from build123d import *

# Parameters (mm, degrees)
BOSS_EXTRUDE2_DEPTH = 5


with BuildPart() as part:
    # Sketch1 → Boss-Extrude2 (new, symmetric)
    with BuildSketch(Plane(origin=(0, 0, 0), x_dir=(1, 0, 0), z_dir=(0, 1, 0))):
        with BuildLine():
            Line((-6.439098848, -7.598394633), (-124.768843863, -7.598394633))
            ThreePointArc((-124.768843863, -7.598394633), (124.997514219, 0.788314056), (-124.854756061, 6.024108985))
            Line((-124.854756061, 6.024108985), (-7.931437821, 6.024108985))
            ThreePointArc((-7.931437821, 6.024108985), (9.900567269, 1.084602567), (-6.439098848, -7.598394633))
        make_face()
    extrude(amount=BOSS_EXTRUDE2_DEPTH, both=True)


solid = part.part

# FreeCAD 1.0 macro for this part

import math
import FreeCAD as App
import Part
import Sketcher

doc = App.newDocument("Part")
body = doc.addObject("PartDesign::Body", "Body")

# Sketch on XZ plane
sketch1 = body.newObject("Sketcher::SketchObject", "Sketch")
sketch1.AttachmentSupport = (doc.getObject("XZ_Plane"), [""])
sketch1.MapMode = "FlatFace"
sketch1.addGeometry(Part.LineSegment(App.Vector(-6, 8, 0), App.Vector(-125, 8, 0)), False)
sketch1.addGeometry(Part.ArcOfCircle(Part.Circle(App.Vector(0, 0, 0), App.Vector(0, 0, 1), 125), math.radians(-177), math.radians(177)), False)
sketch1.addGeometry(Part.LineSegment(App.Vector(-125, -6, 0), App.Vector(-8, -6, 0)), False)
sketch1.addGeometry(Part.ArcOfCircle(Part.Circle(App.Vector(0, 0, 0), App.Vector(0, 0, 1), 10), math.radians(-143), math.radians(130)), False)
sketch1.addConstraint(Sketcher.Constraint("Coincident", 0, 2, 1, 2))
sketch1.addConstraint(Sketcher.Constraint("Coincident", 1, 1, 2, 1))
sketch1.addConstraint(Sketcher.Constraint("Coincident", 2, 2, 3, 1))
sketch1.addConstraint(Sketcher.Constraint("Coincident", 3, 2, 0, 1))
sketch1.addConstraint(Sketcher.Constraint("Horizontal", 0))
sketch1.addConstraint(Sketcher.Constraint("Horizontal", 2))
sketch1.addConstraint(Sketcher.Constraint("Coincident", 1, 3, -1, 1))
sketch1.addConstraint(Sketcher.Constraint("Coincident", 3, 3, -1, 1))
sketch1.addConstraint(Sketcher.Constraint("Radius", 1, 125.0))
sketch1.addConstraint(Sketcher.Constraint("Radius", 3, 9.959799))
sketch1.addConstraint(Sketcher.Constraint("DistanceX", 2, 1, 2, 2, 116.923318))
sketch1.addConstraint(Sketcher.Constraint("DistanceX", 3, 2, -1, 1, 6.439099))
pad1 = body.newObject("PartDesign::Pad", "Pad")
pad1.Profile = sketch1
pad1.Length = 10
pad1.Midplane = True

doc.recompute()
